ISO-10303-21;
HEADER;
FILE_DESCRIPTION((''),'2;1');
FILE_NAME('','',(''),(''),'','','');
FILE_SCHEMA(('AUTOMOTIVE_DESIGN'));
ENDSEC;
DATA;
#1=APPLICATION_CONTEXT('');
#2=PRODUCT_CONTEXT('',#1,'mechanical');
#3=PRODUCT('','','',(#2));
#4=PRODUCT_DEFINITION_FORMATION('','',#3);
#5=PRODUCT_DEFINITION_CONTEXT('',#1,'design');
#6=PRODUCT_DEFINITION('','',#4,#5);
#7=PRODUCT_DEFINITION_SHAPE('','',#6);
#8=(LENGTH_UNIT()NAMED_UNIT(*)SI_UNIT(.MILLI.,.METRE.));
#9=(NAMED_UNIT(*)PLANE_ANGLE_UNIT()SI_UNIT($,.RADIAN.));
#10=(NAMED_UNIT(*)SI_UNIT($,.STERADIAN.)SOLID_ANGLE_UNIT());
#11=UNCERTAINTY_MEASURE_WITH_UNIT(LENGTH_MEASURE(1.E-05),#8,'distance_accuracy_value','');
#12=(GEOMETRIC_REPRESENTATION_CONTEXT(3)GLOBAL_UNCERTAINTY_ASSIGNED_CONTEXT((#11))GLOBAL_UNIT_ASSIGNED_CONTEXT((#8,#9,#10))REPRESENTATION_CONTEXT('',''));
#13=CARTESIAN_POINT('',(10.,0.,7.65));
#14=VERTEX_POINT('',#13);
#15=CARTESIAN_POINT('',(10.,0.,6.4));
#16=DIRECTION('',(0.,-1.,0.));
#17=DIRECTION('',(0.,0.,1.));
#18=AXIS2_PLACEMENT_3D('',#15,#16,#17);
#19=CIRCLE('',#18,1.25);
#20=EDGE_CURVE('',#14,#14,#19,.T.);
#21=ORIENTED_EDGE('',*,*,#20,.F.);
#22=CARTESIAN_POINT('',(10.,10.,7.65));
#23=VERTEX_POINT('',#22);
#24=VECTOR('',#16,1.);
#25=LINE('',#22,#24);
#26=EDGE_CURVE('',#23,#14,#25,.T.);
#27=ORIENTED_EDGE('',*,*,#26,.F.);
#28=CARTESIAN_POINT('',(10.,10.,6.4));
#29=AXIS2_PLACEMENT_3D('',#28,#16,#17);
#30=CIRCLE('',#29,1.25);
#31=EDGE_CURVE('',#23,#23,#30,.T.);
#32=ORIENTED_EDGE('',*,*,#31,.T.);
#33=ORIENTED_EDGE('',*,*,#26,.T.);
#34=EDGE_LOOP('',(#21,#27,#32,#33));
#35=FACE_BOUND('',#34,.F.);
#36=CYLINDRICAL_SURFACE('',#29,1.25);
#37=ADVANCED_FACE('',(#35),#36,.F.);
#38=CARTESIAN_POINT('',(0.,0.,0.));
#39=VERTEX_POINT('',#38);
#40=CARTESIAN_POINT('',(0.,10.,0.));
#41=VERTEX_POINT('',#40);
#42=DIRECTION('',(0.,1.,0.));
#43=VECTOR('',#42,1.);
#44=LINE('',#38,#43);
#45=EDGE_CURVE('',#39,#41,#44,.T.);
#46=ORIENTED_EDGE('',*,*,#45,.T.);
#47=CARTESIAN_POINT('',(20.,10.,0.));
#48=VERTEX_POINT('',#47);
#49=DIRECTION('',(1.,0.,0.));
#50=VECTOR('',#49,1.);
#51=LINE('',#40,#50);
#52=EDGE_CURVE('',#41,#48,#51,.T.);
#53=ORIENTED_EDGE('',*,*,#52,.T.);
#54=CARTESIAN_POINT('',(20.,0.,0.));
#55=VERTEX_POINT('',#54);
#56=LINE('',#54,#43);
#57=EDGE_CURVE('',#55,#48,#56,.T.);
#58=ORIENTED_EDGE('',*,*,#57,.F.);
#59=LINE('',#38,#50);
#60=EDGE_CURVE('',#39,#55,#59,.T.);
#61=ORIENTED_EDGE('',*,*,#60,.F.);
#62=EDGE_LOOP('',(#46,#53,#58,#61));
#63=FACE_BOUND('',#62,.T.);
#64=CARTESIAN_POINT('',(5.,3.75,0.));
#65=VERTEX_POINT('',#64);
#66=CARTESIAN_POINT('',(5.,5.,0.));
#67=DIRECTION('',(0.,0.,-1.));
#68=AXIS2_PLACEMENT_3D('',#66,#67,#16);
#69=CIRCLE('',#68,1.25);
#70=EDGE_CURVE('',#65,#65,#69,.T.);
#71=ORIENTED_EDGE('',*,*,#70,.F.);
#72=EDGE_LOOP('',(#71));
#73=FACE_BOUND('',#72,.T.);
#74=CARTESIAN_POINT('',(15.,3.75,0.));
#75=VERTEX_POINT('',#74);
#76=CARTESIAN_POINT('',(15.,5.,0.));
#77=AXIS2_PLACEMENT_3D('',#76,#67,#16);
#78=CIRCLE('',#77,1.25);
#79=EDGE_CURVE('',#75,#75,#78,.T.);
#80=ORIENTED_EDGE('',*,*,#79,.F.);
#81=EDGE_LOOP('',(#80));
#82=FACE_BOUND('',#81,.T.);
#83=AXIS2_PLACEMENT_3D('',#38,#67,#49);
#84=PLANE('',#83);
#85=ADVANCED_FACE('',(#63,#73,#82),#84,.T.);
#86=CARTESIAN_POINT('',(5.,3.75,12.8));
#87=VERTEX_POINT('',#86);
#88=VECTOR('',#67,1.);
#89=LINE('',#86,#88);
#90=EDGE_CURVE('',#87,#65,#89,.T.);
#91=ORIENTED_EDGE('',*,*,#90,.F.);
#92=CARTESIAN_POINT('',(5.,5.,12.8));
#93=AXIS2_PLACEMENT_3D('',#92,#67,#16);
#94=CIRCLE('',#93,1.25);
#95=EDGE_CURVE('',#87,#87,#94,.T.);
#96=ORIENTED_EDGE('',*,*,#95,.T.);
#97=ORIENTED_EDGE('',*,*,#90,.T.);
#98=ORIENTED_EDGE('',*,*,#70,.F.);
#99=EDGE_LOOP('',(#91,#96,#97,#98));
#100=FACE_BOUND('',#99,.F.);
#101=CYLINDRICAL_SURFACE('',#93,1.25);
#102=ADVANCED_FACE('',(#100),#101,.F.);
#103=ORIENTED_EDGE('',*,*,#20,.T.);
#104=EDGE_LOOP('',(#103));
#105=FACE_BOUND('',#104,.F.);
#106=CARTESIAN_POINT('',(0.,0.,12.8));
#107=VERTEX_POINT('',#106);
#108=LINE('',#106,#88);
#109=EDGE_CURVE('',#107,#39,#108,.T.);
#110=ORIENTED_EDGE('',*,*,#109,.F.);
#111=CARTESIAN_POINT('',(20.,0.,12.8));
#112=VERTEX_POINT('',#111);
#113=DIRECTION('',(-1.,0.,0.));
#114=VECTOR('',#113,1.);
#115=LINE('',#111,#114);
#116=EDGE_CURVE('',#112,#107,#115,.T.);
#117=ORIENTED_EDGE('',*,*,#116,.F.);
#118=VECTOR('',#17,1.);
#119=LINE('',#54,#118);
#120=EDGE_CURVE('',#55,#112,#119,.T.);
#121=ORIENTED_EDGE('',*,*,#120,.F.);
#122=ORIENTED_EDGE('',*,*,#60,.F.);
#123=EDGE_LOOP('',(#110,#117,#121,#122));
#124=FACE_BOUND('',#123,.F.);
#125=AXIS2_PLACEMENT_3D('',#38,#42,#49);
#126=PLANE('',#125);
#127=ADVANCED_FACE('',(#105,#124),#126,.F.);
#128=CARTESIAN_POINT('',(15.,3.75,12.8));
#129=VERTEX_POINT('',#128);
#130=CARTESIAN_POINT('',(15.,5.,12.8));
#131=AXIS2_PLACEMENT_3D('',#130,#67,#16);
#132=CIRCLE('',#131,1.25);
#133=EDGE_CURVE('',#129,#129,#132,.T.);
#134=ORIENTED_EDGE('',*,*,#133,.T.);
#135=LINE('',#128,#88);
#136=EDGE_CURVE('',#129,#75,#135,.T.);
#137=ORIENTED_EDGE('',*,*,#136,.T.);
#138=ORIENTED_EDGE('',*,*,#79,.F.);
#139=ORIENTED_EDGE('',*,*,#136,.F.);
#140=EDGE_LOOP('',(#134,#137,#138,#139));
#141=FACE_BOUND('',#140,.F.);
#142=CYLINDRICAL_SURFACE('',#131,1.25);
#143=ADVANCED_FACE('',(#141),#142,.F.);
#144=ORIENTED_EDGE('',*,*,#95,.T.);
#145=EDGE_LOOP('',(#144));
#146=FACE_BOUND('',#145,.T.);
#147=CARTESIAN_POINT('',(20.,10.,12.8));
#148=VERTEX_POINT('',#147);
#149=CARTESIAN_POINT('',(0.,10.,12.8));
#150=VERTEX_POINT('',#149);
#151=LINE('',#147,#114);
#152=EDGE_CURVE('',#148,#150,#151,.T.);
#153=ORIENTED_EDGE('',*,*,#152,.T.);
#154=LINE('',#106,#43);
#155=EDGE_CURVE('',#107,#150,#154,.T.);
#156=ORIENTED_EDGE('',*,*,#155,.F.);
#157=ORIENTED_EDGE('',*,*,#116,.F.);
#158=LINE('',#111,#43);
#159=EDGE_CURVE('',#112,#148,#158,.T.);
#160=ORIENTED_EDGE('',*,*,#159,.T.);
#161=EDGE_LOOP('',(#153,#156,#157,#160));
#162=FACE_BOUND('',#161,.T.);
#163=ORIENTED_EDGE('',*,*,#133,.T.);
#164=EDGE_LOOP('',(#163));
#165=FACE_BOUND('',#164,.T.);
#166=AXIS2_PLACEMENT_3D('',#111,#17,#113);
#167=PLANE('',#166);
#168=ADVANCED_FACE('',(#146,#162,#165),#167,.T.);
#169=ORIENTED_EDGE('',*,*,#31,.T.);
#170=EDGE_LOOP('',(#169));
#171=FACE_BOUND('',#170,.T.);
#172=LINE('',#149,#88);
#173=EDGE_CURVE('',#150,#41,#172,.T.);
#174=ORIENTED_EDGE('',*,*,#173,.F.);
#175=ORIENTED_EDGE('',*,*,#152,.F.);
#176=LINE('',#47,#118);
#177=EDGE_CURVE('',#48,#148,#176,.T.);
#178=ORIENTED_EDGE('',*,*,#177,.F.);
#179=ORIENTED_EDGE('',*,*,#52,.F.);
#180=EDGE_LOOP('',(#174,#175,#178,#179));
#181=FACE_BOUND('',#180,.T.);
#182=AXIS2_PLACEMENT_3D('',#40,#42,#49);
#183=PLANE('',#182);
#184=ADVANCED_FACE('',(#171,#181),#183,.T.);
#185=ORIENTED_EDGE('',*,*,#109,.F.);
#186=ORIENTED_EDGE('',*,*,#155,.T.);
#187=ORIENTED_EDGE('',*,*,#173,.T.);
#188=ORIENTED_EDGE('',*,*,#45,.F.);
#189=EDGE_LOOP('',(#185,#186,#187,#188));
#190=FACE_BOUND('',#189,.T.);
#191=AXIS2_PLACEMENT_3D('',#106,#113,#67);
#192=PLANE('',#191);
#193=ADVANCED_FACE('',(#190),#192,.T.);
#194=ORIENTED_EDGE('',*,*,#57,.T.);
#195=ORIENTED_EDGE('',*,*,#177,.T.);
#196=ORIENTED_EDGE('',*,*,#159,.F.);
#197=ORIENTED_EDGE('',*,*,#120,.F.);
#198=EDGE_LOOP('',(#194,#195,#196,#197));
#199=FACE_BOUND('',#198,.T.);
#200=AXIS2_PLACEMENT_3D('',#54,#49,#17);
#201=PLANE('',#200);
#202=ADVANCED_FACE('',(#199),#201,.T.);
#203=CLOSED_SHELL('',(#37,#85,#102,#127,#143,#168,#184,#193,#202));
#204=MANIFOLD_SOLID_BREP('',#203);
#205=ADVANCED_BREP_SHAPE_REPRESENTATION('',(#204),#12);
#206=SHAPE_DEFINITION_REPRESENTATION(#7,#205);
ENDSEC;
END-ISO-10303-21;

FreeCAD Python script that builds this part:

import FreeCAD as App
import Part
import Sketcher
Q = App.Units.Quantity


def add_polygon(sketch, points):
    """Adds a closed chain of lines whose ends are joined by coincident constraints."""
    first, n = sketch.GeometryCount, len(points)
    for a, b in zip(points, points[1:] + points[:1]):
        sketch.addGeometry(Part.LineSegment(App.Vector(*a, 0), App.Vector(*b, 0)), False)
    for i in range(n):
        sketch.addConstraint(Sketcher.Constraint("Coincident", first + i, 2, first + (i + 1) % n, 1))

doc = App.newDocument("Part")
body = doc.addObject("PartDesign::Body", "Body")

# Sketch on XZ plane
sketch1 = body.newObject("Sketcher::SketchObject", "Sketch")
sketch1.AttachmentSupport = (doc.getObject("XZ_Plane"), [""])
sketch1.MapMode = "FlatFace"
add_polygon(sketch1, [(20, 0), (0, 0), (0, 13), (20, 13)])  # lines 0-3
sketch1.addConstraint([
    Sketcher.Constraint("Horizontal", 0),
    Sketcher.Constraint("Vertical", 1),
    Sketcher.Constraint("Horizontal", 2),
    Sketcher.Constraint("Vertical", 3),
    Sketcher.Constraint("Coincident", 0, 2, -1, 1),
    Sketcher.Constraint("DistanceX", 0, 2, 0, 1, Q("20 mm")),
    Sketcher.Constraint("DistanceY", 1, 1, 1, 2, Q("12.8 mm")),
])
pad1 = body.newObject("PartDesign::Pad", "Pad")
pad1.Profile = sketch1
pad1.Length = 10
pad1.Reversed = True

# Sketch on XZ plane
sketch2 = body.newObject("Sketcher::SketchObject", "Sketch001")
sketch2.AttachmentSupport = (doc.getObject("XZ_Plane"), [""])
sketch2.MapMode = "FlatFace"
sketch2.AttachmentOffset = App.Placement(App.Vector(0, 0, -10), App.Rotation())
sketch2.addGeometry(Part.Circle(App.Vector(10, 6.4, 0), App.Vector(0, 0, 1), 1.2), False)
sketch2.addConstraint([
    Sketcher.Constraint("Diameter", 0, Q("2.5 mm")),
    Sketcher.Constraint("DistanceX", -1, 1, 0, 3, Q("10 mm")),
    Sketcher.Constraint("DistanceY", -1, 1, 0, 3, Q("6.4 mm")),
])
doc.recompute()
hole = body.newObject("PartDesign::Hole", "Hole")
hole.Profile = sketch2
hole.ThreadType = "None"
hole.Diameter = 2.5
hole.DepthType = "ThroughAll"
hole.Reversed = True

# Sketch on XY plane
sketch3 = body.newObject("Sketcher::SketchObject", "Sketch002")
sketch3.AttachmentSupport = (doc.getObject("XY_Plane"), [""])
sketch3.MapMode = "FlatFace"
sketch3.AttachmentOffset = App.Placement(App.Vector(0, 0, 12.8), App.Rotation())
sketch3.addGeometry(Part.Circle(App.Vector(5, 5, 0), App.Vector(0, 0, 1), 1.2), False)
sketch3.addConstraint([
    Sketcher.Constraint("Diameter", 0, Q("2.5 mm")),
    Sketcher.Constraint("DistanceX", -1, 1, 0, 3, Q("5 mm")),
    Sketcher.Constraint("DistanceY", -1, 1, 0, 3, Q("5 mm")),
])
doc.recompute()
hole2 = body.newObject("PartDesign::Hole", "Hole001")
hole2.Profile = sketch3
hole2.ThreadType = "None"
hole2.Diameter = 2.5
hole2.DepthType = "ThroughAll"

# Sketch on XY plane
sketch4 = body.newObject("Sketcher::SketchObject", "Sketch003")
sketch4.AttachmentSupport = (doc.getObject("XY_Plane"), [""])
sketch4.MapMode = "FlatFace"
sketch4.AttachmentOffset = App.Placement(App.Vector(0, 0, 12.8), App.Rotation())
sketch4.addGeometry(Part.Circle(App.Vector(15, 5, 0), App.Vector(0, 0, 1), 1.2), False)
sketch4.addConstraint([
    Sketcher.Constraint("Diameter", 0, Q("2.5 mm")),
    Sketcher.Constraint("DistanceX", -1, 1, 0, 3, Q("15 mm")),
    Sketcher.Constraint("DistanceY", -1, 1, 0, 3, Q("5 mm")),
])
doc.recompute()
hole3 = body.newObject("PartDesign::Hole", "Hole002")
hole3.Profile = sketch4
hole3.ThreadType = "None"
hole3.Diameter = 2.5
hole3.DepthType = "ThroughAll"

doc.recompute()
